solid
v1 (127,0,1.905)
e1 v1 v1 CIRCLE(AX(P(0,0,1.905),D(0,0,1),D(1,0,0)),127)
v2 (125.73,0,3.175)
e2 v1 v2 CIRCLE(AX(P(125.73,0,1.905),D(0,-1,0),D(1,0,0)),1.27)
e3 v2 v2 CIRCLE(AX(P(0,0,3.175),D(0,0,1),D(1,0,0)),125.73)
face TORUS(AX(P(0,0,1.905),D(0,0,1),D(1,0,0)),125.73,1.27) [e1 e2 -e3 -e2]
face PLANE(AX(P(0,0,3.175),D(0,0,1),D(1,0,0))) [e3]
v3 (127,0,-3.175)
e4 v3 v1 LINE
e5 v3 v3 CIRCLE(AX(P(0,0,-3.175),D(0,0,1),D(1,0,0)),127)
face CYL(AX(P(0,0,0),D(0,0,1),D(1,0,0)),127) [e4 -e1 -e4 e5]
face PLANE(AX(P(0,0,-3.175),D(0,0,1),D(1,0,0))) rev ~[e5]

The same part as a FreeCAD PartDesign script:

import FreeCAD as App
import Part
import Sketcher
from FreeCAD import Vector
Q = App.Units.Quantity


def edges_at(feature, points):
    """Names of the edges that pass closest to the given points."""
    edges = feature.Shape.Edges
    near = lambda p: min(range(len(edges)), key=lambda i: edges[i].distToShape(Part.Vertex(*p))[0])
    return sorted({f"Edge{near(p) + 1}" for p in points})

doc = App.newDocument("Part")
body = doc.addObject("PartDesign::Body", "Body")

# Sketch on XY plane
sketch1 = doc.addObject("Sketcher::SketchObject", "Sketch")
body.addObject(sketch1)
sketch1.AttachmentSupport = (doc.XY_Plane, [""])
sketch1.MapMode = "FlatFace"
sketch1.addGeometry(Part.Circle(Vector(0, 0, 0), Vector(0, 0, 1), 127), False)
sketch1.addConstraint([
    Sketcher.Constraint("Coincident", 0, 3, -1, 1),
    Sketcher.Constraint("Diameter", 0, Q("10 in")),
])
pad1 = doc.addObject("PartDesign::Pad", "Pad")
body.addObject(pad1)
pad1.Profile = sketch1
pad1.Length = Q("0.25 in")
pad1.Midplane = True
doc.recompute()

fillet = doc.addObject("PartDesign::Fillet", "Fillet")
body.addObject(fillet)
fillet.Base = (pad1, edges_at(pad1, [(-127, 0, 3.175)]))
fillet.Radius = Q("0.05 in")

doc.recompute()
